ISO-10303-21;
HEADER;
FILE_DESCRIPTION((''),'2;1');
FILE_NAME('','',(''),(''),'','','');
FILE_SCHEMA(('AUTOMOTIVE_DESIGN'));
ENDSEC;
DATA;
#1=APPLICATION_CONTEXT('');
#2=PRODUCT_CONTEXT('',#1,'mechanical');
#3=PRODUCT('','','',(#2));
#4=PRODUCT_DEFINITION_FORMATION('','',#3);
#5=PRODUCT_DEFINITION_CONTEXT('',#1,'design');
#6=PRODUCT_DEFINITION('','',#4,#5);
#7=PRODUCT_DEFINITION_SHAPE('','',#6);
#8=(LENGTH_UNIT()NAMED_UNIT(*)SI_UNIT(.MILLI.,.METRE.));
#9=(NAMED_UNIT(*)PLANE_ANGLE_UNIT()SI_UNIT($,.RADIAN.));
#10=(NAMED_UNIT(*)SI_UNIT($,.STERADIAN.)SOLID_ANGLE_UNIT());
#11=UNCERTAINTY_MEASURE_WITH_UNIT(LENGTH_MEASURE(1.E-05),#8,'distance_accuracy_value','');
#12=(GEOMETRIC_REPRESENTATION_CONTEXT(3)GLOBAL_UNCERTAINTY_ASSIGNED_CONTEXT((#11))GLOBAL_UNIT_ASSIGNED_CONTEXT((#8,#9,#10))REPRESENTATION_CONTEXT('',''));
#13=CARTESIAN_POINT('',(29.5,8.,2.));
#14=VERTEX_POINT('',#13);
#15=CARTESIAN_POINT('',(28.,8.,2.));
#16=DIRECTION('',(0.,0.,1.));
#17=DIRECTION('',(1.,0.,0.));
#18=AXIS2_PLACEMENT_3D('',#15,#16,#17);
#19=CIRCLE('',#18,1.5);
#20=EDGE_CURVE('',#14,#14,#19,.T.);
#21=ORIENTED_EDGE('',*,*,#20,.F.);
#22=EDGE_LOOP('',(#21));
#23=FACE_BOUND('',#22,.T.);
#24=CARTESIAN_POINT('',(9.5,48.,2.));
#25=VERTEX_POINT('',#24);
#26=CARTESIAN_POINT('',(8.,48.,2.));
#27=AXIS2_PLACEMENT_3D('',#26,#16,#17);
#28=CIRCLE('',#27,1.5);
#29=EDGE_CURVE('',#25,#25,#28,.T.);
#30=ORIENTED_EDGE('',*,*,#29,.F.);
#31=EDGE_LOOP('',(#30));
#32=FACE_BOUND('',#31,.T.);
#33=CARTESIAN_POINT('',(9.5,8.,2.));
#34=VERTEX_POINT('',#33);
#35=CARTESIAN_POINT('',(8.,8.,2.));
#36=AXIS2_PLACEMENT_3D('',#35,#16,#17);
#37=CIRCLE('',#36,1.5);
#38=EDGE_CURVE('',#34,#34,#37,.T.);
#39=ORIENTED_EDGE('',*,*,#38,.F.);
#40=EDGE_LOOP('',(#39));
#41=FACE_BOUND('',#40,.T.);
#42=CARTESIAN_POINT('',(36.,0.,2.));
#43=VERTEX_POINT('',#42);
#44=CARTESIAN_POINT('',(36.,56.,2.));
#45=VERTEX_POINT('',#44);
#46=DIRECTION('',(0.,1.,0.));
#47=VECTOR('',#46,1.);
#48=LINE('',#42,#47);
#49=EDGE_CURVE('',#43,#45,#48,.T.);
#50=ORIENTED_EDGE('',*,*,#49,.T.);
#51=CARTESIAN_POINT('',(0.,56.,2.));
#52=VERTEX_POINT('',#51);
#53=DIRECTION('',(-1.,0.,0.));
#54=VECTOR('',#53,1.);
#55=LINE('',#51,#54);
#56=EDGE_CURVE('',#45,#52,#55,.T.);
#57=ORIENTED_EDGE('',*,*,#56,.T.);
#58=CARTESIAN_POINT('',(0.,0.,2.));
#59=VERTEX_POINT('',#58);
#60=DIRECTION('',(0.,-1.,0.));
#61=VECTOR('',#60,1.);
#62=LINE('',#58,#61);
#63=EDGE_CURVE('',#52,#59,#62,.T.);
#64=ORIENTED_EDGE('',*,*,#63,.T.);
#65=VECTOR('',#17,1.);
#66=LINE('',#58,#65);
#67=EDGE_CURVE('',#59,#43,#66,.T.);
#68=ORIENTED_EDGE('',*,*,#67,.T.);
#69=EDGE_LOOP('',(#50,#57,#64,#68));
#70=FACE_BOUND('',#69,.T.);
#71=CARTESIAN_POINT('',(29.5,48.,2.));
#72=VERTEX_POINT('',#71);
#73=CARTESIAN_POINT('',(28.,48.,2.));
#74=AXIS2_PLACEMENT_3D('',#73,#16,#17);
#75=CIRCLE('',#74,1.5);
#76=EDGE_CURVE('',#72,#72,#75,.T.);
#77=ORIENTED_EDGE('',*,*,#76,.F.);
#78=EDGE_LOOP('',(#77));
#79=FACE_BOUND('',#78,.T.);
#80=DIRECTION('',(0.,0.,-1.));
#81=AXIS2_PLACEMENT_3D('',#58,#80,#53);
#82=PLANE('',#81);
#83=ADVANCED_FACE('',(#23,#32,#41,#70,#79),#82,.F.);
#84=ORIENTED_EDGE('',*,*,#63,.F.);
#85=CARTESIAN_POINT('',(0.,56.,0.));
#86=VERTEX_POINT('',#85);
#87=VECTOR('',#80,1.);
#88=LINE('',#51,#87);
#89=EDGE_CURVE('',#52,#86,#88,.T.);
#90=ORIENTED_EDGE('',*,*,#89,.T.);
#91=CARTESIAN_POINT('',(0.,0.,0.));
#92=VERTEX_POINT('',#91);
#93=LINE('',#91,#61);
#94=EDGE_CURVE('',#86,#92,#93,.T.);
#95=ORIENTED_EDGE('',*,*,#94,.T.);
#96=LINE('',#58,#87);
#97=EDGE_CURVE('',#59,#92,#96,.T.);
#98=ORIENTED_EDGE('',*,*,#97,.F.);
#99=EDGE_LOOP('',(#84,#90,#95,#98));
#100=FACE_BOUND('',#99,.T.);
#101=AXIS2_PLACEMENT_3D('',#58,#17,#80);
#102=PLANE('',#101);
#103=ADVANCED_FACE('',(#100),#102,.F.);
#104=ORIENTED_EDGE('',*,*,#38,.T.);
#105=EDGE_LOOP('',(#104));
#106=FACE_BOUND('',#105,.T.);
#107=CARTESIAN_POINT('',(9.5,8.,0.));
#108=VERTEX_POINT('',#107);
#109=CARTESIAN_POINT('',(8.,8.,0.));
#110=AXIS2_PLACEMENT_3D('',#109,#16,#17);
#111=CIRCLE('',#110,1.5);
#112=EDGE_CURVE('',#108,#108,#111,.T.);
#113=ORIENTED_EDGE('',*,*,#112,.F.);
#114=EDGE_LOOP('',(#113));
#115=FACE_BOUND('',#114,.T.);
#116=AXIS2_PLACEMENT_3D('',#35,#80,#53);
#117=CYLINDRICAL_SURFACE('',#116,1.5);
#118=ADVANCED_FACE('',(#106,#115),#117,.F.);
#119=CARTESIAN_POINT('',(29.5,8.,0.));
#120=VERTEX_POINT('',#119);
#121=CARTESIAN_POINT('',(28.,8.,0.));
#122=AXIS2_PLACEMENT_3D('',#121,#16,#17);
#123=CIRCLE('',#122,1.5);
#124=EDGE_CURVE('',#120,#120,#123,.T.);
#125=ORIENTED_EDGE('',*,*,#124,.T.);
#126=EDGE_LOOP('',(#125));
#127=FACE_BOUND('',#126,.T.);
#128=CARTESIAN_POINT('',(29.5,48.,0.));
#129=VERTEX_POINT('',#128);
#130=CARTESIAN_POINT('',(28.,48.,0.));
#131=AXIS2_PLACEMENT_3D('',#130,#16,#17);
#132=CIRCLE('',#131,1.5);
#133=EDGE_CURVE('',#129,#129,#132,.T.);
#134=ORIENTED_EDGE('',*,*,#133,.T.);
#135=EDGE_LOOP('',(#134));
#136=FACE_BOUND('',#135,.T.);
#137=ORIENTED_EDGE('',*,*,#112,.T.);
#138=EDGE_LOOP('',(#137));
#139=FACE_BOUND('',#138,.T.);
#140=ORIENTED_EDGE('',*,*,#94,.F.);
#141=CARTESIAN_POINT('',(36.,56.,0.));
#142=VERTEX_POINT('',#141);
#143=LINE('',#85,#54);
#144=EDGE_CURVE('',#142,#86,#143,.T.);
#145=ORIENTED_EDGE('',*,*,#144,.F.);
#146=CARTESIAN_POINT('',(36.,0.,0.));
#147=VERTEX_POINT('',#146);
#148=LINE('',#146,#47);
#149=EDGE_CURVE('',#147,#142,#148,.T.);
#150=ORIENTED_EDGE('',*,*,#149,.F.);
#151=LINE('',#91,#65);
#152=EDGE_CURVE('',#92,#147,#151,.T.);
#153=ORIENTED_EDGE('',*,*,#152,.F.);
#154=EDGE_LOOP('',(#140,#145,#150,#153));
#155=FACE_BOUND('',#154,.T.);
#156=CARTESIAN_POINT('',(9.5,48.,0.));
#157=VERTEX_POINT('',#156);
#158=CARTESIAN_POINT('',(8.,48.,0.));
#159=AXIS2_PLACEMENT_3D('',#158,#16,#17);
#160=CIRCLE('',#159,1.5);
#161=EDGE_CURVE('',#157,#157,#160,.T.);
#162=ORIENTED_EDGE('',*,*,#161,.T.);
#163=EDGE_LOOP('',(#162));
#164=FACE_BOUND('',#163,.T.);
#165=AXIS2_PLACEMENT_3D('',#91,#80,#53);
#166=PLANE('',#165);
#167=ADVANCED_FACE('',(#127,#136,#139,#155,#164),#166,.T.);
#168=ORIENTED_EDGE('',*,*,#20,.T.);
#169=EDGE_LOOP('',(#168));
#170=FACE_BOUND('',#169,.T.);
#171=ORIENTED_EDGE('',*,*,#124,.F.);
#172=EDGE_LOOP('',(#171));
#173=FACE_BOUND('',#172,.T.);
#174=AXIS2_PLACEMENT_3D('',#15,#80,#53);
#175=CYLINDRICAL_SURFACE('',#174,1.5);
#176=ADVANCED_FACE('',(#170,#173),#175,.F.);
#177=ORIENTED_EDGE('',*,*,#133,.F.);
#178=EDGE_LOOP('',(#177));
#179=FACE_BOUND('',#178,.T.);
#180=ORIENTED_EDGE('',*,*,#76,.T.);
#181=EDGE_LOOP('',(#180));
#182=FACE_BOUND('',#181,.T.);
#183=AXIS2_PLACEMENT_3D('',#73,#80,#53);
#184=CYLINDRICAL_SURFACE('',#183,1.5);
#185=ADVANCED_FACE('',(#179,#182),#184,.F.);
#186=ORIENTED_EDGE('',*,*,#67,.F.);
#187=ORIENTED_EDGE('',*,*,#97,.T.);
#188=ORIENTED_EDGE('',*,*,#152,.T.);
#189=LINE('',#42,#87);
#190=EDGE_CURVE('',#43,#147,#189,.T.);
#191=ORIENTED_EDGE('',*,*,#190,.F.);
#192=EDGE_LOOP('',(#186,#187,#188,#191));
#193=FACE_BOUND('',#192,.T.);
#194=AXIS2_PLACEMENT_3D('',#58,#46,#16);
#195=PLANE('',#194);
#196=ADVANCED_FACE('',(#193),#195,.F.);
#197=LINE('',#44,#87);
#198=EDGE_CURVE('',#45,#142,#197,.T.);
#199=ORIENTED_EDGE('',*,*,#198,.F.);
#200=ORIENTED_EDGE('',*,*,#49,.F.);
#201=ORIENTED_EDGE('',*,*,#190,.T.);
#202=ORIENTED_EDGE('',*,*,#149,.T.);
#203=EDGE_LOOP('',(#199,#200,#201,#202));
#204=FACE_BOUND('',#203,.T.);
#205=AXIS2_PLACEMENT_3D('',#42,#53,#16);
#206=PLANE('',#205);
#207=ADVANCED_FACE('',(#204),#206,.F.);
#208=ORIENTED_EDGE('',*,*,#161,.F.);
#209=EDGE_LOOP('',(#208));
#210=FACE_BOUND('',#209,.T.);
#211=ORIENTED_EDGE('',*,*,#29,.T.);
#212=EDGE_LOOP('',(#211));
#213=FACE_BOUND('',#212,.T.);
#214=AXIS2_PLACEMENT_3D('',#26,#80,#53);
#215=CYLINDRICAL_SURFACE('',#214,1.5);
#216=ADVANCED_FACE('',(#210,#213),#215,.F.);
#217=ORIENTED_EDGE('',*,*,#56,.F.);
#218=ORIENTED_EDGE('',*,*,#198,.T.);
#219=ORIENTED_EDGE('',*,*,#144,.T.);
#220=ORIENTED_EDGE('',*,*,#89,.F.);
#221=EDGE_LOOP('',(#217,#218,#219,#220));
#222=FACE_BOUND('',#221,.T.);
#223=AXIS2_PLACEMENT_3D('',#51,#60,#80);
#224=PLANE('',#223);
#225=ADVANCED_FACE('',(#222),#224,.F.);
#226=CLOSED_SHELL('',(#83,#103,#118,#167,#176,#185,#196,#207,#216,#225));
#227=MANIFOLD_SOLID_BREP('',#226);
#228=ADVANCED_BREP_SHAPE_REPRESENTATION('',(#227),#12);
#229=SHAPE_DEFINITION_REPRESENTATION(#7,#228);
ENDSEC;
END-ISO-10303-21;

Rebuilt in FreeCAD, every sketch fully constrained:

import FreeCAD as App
import Part
import Sketcher

V = App.Vector

doc = App.newDocument("Part")
params = doc.addObject("Spreadsheet::Sheet", "Params")
for row, (alias, value) in enumerate([
    ("sketch1_diameter", "3 mm"),
    ("sketch1_width", "36 mm"),
    ("sketch1_height", "56 mm"),
    ("pad1_length", "2 mm"),
], start=1):
    params.set(f"A{row}", alias)
    params.set(f"B{row}", "=" + value)
    params.setAlias(f"B{row}", alias)

body = doc.addObject("PartDesign::Body", "Body")

sketch1 = body.newObject("Sketcher::SketchObject", "Sketch")
sketch1.AttachmentSupport = (doc.getObject("XY_Plane"), [""])
sketch1.MapMode = "FlatFace"
sketch1.addGeometry([
    Part.LineSegment(V(0, 56, 0), V(0, 0, 0)),
    Part.LineSegment(V(0, 0, 0), V(36, 0, 0)),
    Part.LineSegment(V(36, 0, 0), V(36, 56, 0)),
    Part.LineSegment(V(36, 56, 0), V(0, 56, 0)),
    Part.Circle(V(8, 8, 0), V(0, 0, 1), 1.5),
    Part.Circle(V(28, 8, 0), V(0, 0, 1), 1.5),
    Part.Circle(V(8, 48, 0), V(0, 0, 1), 1.5),
    Part.Circle(V(28, 48, 0), V(0, 0, 1), 1.5),
], False)
sketch1.addConstraint([
    Sketcher.Constraint("Coincident", 0, 2, 1, 1),
    Sketcher.Constraint("Coincident", 1, 2, 2, 1),
    Sketcher.Constraint("Coincident", 2, 2, 3, 1),
    Sketcher.Constraint("Coincident", 3, 2, 0, 1),
    Sketcher.Constraint("Vertical", 0),
    Sketcher.Constraint("Horizontal", 1),
    Sketcher.Constraint("Vertical", 2),
    Sketcher.Constraint("Horizontal", 3),
    Sketcher.Constraint("Coincident", 0, 2, -1, 1),
    Sketcher.Constraint("Equal", 4, 5),
    Sketcher.Constraint("Equal", 5, 6),
    Sketcher.Constraint("Equal", 6, 7),
    Sketcher.Constraint("Horizontal", 4, 3, 5, 3),
    Sketcher.Constraint("Horizontal", 6, 3, 7, 3),
    Sketcher.Constraint("Vertical", 4, 3, 6, 3),
    Sketcher.Constraint("Vertical", 5, 3, 7, 3),
    Sketcher.Constraint("Diameter", 4, 3.0),
    Sketcher.Constraint("DistanceX", 1, 1, 1, 2, 36.0),
    Sketcher.Constraint("DistanceY", 0, 2, 0, 1, 56.0),
    Sketcher.Constraint("DistanceX", -1, 1, 4, 3, 8.0),
    Sketcher.Constraint("DistanceY", -1, 1, 4, 3, 8.0),
    Sketcher.Constraint("DistanceX", -1, 1, 5, 3, 28.0),
    Sketcher.Constraint("DistanceY", -1, 1, 6, 3, 48.0),
])
sketch1.setExpression("Constraints[16]", "Params.sketch1_diameter")
sketch1.setExpression("Constraints[17]", "Params.sketch1_width")
sketch1.setExpression("Constraints[18]", "Params.sketch1_height")
pad1 = body.newObject("PartDesign::Pad", "Pad")
pad1.Profile = sketch1
pad1.setExpression("Length", "Params.pad1_length")

doc.recompute()
